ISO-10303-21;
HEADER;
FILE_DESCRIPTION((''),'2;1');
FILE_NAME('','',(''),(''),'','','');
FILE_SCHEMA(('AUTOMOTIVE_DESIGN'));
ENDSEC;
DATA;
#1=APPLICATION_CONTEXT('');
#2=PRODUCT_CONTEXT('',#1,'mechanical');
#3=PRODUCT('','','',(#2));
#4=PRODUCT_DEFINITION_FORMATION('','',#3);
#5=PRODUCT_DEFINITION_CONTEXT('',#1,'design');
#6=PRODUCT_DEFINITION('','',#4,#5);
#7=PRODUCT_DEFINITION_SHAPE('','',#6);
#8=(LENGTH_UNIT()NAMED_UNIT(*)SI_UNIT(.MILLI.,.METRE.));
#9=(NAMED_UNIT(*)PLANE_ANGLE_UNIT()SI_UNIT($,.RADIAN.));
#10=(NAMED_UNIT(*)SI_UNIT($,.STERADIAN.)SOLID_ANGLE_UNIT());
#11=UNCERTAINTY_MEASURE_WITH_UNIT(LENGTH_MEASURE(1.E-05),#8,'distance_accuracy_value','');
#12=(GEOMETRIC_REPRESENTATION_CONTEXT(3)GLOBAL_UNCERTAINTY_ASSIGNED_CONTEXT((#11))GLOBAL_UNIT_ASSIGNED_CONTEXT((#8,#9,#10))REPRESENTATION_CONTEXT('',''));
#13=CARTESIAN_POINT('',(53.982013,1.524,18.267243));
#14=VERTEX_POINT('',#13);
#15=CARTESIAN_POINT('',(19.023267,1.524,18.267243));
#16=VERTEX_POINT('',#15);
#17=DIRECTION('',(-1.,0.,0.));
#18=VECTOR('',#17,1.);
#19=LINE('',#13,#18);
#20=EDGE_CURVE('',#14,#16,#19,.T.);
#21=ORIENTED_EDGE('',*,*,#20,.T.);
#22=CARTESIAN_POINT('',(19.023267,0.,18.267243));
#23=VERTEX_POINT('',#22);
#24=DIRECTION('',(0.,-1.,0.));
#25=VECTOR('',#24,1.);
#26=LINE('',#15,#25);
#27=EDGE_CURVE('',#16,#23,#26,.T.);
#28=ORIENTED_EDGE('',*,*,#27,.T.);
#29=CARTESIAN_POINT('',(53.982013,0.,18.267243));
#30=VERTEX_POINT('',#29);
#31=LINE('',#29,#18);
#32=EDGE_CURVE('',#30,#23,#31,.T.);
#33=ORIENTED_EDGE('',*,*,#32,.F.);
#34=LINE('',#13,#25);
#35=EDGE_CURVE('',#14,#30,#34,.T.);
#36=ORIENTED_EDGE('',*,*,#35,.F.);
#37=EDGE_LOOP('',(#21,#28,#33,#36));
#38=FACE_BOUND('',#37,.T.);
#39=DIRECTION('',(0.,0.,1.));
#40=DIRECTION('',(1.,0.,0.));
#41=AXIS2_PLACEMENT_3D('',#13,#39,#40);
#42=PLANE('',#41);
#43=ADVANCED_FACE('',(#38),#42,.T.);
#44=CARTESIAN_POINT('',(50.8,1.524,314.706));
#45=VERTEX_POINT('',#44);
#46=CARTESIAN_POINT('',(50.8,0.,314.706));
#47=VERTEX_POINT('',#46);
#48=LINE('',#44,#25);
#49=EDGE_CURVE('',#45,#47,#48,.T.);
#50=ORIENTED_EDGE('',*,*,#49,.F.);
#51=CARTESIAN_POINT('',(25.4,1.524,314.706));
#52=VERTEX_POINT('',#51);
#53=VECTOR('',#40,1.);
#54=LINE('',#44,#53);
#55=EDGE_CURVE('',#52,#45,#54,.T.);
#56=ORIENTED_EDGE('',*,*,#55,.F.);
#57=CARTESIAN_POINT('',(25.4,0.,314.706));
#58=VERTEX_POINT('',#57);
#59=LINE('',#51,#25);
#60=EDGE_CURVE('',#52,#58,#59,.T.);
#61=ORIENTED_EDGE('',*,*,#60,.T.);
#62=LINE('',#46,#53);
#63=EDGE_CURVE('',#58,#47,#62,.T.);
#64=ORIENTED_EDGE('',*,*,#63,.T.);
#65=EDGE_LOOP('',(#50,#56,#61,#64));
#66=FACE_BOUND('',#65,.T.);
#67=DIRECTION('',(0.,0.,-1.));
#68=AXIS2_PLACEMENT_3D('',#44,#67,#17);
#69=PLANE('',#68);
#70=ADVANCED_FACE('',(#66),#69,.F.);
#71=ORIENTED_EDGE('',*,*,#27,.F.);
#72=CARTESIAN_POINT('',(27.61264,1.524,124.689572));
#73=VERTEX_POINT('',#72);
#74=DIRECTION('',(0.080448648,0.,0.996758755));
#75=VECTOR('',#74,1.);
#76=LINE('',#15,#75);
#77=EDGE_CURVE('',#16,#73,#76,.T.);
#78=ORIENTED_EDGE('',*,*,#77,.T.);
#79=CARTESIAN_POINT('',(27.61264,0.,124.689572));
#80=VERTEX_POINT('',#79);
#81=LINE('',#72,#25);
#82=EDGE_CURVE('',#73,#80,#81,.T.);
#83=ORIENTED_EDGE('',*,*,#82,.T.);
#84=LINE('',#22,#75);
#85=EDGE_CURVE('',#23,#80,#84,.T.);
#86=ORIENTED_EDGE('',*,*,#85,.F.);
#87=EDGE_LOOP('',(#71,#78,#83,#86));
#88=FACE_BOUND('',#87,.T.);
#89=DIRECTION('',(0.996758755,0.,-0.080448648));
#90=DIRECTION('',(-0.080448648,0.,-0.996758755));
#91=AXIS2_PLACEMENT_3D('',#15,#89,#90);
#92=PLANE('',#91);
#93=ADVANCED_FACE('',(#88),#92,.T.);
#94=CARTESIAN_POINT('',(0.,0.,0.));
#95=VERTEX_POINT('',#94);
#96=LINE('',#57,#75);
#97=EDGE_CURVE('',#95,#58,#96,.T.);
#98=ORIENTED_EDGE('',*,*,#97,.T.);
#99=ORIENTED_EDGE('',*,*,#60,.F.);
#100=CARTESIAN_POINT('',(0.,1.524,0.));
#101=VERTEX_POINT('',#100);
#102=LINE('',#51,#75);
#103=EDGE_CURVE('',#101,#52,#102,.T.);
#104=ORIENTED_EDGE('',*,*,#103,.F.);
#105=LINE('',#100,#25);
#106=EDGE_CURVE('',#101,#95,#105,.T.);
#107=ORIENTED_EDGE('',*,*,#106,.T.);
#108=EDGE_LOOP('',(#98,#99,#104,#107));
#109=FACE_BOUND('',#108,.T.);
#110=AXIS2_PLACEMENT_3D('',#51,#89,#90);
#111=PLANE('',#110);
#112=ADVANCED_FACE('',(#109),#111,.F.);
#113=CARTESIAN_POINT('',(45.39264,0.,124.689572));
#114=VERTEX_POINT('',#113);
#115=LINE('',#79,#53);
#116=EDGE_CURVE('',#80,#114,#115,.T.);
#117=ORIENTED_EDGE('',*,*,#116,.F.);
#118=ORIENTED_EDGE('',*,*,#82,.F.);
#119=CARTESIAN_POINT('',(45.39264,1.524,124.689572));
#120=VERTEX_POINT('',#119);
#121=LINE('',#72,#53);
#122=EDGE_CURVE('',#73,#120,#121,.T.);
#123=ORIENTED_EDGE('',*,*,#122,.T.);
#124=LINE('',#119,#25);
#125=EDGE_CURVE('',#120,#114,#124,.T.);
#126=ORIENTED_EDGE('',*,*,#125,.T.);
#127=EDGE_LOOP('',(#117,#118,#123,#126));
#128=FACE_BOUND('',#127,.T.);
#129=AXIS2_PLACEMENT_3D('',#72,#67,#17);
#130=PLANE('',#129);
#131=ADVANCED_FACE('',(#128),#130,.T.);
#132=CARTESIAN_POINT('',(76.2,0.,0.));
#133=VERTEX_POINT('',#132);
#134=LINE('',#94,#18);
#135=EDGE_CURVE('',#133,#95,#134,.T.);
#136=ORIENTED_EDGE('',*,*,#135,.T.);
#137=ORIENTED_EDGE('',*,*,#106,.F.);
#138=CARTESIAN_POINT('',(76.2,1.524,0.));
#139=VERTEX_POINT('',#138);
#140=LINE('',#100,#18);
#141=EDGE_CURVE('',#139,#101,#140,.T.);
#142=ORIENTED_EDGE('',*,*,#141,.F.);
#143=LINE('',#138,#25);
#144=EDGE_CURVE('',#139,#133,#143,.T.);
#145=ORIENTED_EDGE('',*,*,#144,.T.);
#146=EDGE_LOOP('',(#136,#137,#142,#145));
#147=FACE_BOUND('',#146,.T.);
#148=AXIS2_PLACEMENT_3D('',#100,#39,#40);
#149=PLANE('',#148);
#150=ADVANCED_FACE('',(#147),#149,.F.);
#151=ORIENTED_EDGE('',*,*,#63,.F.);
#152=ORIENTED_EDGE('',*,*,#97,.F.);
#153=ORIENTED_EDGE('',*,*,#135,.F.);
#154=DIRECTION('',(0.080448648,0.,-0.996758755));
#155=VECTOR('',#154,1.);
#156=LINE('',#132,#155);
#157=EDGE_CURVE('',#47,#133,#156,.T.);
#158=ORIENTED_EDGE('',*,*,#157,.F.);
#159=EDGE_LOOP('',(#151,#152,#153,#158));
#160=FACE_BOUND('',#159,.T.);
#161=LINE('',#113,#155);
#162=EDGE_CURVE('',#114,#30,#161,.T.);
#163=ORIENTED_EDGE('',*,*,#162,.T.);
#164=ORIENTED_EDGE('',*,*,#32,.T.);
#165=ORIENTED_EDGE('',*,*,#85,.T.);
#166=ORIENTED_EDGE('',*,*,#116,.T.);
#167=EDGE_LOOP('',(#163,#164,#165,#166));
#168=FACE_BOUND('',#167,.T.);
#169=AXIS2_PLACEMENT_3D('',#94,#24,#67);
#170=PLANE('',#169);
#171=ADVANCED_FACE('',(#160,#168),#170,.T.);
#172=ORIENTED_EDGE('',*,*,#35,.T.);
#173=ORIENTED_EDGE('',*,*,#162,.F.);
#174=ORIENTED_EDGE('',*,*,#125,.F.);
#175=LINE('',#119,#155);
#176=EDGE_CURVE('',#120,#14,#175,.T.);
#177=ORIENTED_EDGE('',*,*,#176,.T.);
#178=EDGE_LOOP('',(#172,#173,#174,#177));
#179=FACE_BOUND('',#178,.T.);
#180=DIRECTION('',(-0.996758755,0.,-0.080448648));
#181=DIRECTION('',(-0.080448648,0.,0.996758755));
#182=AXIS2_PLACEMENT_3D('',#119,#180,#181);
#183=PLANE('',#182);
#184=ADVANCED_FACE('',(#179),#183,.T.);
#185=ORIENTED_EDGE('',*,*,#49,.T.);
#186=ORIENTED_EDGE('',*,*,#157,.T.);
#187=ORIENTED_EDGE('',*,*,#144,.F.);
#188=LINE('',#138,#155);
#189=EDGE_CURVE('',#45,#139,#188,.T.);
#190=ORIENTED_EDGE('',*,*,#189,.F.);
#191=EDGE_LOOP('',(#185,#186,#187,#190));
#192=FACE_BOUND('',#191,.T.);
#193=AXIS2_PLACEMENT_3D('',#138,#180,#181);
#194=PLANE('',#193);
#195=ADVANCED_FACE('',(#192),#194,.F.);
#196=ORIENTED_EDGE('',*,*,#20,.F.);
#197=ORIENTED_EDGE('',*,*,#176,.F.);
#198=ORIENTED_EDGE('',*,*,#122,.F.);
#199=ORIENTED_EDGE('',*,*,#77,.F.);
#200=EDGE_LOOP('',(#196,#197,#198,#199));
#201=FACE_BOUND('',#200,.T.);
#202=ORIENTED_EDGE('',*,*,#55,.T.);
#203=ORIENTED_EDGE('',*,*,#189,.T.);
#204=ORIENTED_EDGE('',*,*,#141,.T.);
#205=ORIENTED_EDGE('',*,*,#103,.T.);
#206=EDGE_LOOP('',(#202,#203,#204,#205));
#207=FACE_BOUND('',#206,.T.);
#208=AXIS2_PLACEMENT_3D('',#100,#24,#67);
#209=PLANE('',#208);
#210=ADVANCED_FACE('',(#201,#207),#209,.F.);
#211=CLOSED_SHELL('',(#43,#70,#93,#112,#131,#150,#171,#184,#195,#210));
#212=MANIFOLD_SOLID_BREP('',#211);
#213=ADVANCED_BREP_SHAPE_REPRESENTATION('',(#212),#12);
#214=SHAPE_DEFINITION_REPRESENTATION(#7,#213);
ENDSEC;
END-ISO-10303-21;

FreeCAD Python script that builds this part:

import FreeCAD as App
import Part
import Sketcher
Q = App.Units.Quantity


def add_polygon(sketch, points):
    """Adds a closed chain of lines whose ends are joined by coincident constraints."""
    first, n = sketch.GeometryCount, len(points)
    for a, b in zip(points, points[1:] + points[:1]):
        sketch.addGeometry(Part.LineSegment(App.Vector(*a, 0), App.Vector(*b, 0)), False)
    for i in range(n):
        sketch.addConstraint(Sketcher.Constraint("Coincident", first + i, 2, first + (i + 1) % n, 1))

doc = App.newDocument("Part")
body = doc.addObject("PartDesign::Body", "Body")

# Sketch on XZ plane
sketch1 = body.newObject("Sketcher::SketchObject", "Sketch")
sketch1.AttachmentSupport = (doc.getObject("XZ_Plane"), [""])
sketch1.MapMode = "FlatFace"
add_polygon(sketch1, [(76.2, 0), (0, 0), (25.4, 314.706), (50.8, 314.706)])  # lines 0-3
sketch1.addConstraint([
    Sketcher.Constraint("Horizontal", 0),
    Sketcher.Constraint("Horizontal", 2),
    Sketcher.Constraint("Coincident", 0, 2, -1, 1),
    Sketcher.Constraint("Equal", 1, 3),
    Sketcher.Constraint("DistanceX", 0, 2, 0, 1, Q("3 in")),
    Sketcher.Constraint("DistanceX", 2, 1, 2, 2, Q("1 in")),
    Sketcher.Constraint("DistanceY", -1, 1, 1, 2, Q("12.39 in")),
])
pad1 = body.newObject("PartDesign::Pad", "Pad")
pad1.Profile = sketch1
pad1.Length = Q("0.06 in")
pad1.Reversed = True

# Sketch on XZ plane
sketch2 = body.newObject("Sketcher::SketchObject", "Sketch001")
sketch2.AttachmentSupport = (doc.getObject("XZ_Plane"), [""])
sketch2.MapMode = "FlatFace"
add_polygon(sketch2, [(45.39264, 124.689572), (27.61264, 124.689572), (19.023267, 18.267243), (53.982013, 18.267243)])  # lines 0-3
sketch2.addConstraint([
    Sketcher.Constraint("Horizontal", 0),
    Sketcher.Constraint("Horizontal", 2),
    Sketcher.Constraint("Equal", 1, 3),
    Sketcher.Constraint("DistanceX", 0, 2, 0, 1, Q("0.7 in")),
    Sketcher.Constraint("Distance", 1, 106.768391),
    Sketcher.Constraint("DistanceX", 2, 1, 2, 2, 34.958745),
    Sketcher.Constraint("DistanceX", -1, 1, 0, 2, 27.61264),
    Sketcher.Constraint("DistanceY", -1, 1, 0, 2, 124.689572),
])
pocket1 = body.newObject("PartDesign::Pocket", "Pocket")
pocket1.Profile = sketch2
pocket1.Length = Q("0.06 in")

doc.recompute()
